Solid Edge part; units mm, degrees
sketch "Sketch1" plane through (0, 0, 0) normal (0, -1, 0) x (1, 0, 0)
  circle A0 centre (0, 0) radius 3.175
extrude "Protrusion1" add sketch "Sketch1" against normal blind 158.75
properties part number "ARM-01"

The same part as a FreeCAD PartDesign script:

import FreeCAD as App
import Part
import Sketcher
Q = App.Units.Quantity

doc = App.newDocument("Part")
body = doc.addObject("PartDesign::Body", "Body")

sketch1 = doc.addObject("Sketcher::SketchObject", "Sketch")
body.addObject(sketch1)
sketch1.AttachmentSupport = (doc.XZ_Plane, [""])
sketch1.MapMode = "FlatFace"
sketch1.addGeometry(Part.Circle(App.Vector(0, 0, 0), App.Vector(0, 0, 1), 3.2), False)
sketch1.addConstraint([
    Sketcher.Constraint("Coincident", 0, 3, -1, 1),
    Sketcher.Constraint("Diameter", 0, Q("0.25 in")),
])
pad1 = doc.addObject("PartDesign::Pad", "Pad")
body.addObject(pad1)
pad1.Profile = sketch1
pad1.Length = Q("6.25 in")
pad1.Reversed = True

doc.recompute()
